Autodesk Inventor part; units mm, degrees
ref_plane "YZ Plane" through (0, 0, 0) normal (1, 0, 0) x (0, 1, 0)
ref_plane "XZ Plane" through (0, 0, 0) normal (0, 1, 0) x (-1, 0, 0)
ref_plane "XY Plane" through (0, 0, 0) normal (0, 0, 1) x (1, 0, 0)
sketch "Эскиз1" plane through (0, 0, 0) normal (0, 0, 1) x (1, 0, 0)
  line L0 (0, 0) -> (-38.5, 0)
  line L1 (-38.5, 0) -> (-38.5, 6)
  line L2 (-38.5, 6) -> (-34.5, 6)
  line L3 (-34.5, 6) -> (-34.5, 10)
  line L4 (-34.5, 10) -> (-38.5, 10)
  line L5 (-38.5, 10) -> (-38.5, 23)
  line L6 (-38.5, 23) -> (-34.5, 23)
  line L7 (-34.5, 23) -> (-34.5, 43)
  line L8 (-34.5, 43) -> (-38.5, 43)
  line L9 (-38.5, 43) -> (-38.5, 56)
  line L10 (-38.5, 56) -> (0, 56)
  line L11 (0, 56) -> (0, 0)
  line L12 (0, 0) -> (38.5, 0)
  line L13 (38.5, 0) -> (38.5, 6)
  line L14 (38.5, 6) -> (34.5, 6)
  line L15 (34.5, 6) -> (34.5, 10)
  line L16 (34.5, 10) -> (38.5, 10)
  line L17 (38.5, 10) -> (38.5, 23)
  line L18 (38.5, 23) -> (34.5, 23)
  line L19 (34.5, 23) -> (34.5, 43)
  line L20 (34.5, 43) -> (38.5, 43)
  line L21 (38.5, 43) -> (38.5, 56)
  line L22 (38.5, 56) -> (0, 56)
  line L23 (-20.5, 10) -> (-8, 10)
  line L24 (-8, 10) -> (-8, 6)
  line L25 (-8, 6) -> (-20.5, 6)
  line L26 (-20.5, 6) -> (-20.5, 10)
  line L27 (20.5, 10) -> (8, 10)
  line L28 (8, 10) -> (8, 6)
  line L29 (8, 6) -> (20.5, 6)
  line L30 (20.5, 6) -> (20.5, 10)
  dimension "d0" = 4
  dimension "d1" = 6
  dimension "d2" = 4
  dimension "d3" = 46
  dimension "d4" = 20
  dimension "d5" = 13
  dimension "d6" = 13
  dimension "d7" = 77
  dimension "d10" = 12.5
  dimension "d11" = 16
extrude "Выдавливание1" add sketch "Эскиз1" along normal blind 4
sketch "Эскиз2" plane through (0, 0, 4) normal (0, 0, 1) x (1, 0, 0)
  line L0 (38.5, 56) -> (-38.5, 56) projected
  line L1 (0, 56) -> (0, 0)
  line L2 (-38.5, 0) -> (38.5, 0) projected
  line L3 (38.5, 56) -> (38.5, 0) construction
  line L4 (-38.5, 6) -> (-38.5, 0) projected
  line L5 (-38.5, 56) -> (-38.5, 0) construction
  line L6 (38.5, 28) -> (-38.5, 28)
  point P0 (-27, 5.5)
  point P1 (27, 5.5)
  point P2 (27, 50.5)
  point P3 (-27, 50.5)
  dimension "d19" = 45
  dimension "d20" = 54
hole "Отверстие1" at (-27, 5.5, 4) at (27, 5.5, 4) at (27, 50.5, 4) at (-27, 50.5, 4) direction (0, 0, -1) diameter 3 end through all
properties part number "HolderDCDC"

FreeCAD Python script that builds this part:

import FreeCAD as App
import Part
import Sketcher


def add_polygon(sketch, points):
    """Adds a closed chain of lines whose ends are joined by coincident constraints."""
    first, n = sketch.GeometryCount, len(points)
    for a, b in zip(points, points[1:] + points[:1]):
        sketch.addGeometry(Part.LineSegment(App.Vector(*a, 0), App.Vector(*b, 0)), False)
    for i in range(n):
        sketch.addConstraint(Sketcher.Constraint("Coincident", first + i, 2, first + (i + 1) % n, 1))

doc = App.newDocument("Part")
body = doc.addObject("PartDesign::Body", "Body")

sketch1 = doc.addObject("Sketcher::SketchObject", "Sketch")
body.addObject(sketch1)
sketch1.AttachmentSupport = (doc.XY_Plane, [""])
sketch1.MapMode = "FlatFace"
add_polygon(sketch1, [(-38.5, 0), (38.5, 0), (38.5, 6), (34.5, 6), (34.5, 10), (38.5, 10), (38.5, 23), (34.5, 23), (34.5, 43), (38.5, 43), (38.5, 56), (-38.5, 56), (-38.5, 43), (-34.5, 43), (-34.5, 23), (-38.5, 23), (-38.5, 10), (-34.5, 10), (-34.5, 6), (-38.5, 6)])
add_polygon(sketch1, [(-20.5, 6), (-20.5, 10), (-8, 10), (-8, 6)])
add_polygon(sketch1, [(20.5, 10), (20.5, 6), (8, 6), (8, 10)])
sketch1.addConstraint(Sketcher.Constraint("Horizontal", 0))
sketch1.addConstraint(Sketcher.Constraint("Vertical", 1))
sketch1.addConstraint(Sketcher.Constraint("Horizontal", 2))
sketch1.addConstraint(Sketcher.Constraint("Vertical", 3))
sketch1.addConstraint(Sketcher.Constraint("Horizontal", 4))
sketch1.addConstraint(Sketcher.Constraint("Vertical", 5))
sketch1.addConstraint(Sketcher.Constraint("Horizontal", 6))
sketch1.addConstraint(Sketcher.Constraint("Vertical", 7))
sketch1.addConstraint(Sketcher.Constraint("Horizontal", 8))
sketch1.addConstraint(Sketcher.Constraint("Vertical", 9))
sketch1.addConstraint(Sketcher.Constraint("Horizontal", 10))
sketch1.addConstraint(Sketcher.Constraint("Vertical", 11))
sketch1.addConstraint(Sketcher.Constraint("Horizontal", 12))
sketch1.addConstraint(Sketcher.Constraint("Vertical", 13))
sketch1.addConstraint(Sketcher.Constraint("Horizontal", 14))
sketch1.addConstraint(Sketcher.Constraint("Vertical", 15))
sketch1.addConstraint(Sketcher.Constraint("Horizontal", 16))
sketch1.addConstraint(Sketcher.Constraint("Vertical", 17))
sketch1.addConstraint(Sketcher.Constraint("Horizontal", 18))
sketch1.addConstraint(Sketcher.Constraint("Vertical", 19))
sketch1.addConstraint(Sketcher.Constraint("Vertical", 20))
sketch1.addConstraint(Sketcher.Constraint("Horizontal", 21))
sketch1.addConstraint(Sketcher.Constraint("Vertical", 22))
sketch1.addConstraint(Sketcher.Constraint("Horizontal", 23))
sketch1.addConstraint(Sketcher.Constraint("Vertical", 24))
sketch1.addConstraint(Sketcher.Constraint("Horizontal", 25))
sketch1.addConstraint(Sketcher.Constraint("Vertical", 26))
sketch1.addConstraint(Sketcher.Constraint("Horizontal", 27))
sketch1.addConstraint(Sketcher.Constraint("Symmetric", 0, 2, 19, 2, -1, 1))
sketch1.addConstraint(Sketcher.Constraint("Symmetric", 8, 2, 11, 2, -2))
sketch1.addConstraint(Sketcher.Constraint("Symmetric", 6, 2, 13, 2, -2))
sketch1.addConstraint(Sketcher.Constraint("Symmetric", 4, 2, 15, 2, -2))
sketch1.addConstraint(Sketcher.Constraint("Symmetric", 2, 2, 17, 2, -2))
sketch1.addConstraint(Sketcher.Constraint("Symmetric", 23, 2, 24, 2, -2))
sketch1.addConstraint(Sketcher.Constraint("Symmetric", 21, 2, 26, 2, -2))
sketch1.addConstraint(Sketcher.Constraint("Horizontal", 16, 2, 20, 2))
sketch1.addConstraint(Sketcher.Constraint("Horizontal", 18, 2, 22, 2))
sketch1.addConstraint(Sketcher.Constraint("Vertical", 1, 2, 4, 2))
sketch1.addConstraint(Sketcher.Constraint("Vertical", 3, 2, 6, 2))
sketch1.addConstraint(Sketcher.Constraint("Vertical", 5, 2, 8, 2))
sketch1.addConstraint(Sketcher.Constraint("Equal", 18, 3))
sketch1.addConstraint(Sketcher.Constraint("Equal", 5, 9))
sketch1.addConstraint(Sketcher.Constraint("DistanceX", 0, 1, 0, 2, 77.0))
sketch1.addConstraint(Sketcher.Constraint("DistanceX", 2, 2, 2, 1, 4.0))
sketch1.addConstraint(Sketcher.Constraint("DistanceY", 1, 1, 1, 2, 6.0))
sketch1.addConstraint(Sketcher.Constraint("DistanceY", 5, 1, 5, 2, 13.0))
sketch1.addConstraint(Sketcher.Constraint("DistanceY", 7, 1, 7, 2, 20.0))
sketch1.addConstraint(Sketcher.Constraint("DistanceX", 21, 1, 21, 2, 12.5))
sketch1.addConstraint(Sketcher.Constraint("DistanceX", 22, 2, 25, 2, 16.0))
pad1 = doc.addObject("PartDesign::Pad", "Pad")
body.addObject(pad1)
pad1.Profile = sketch1
pad1.Length = 4

sketch2 = doc.addObject("Sketcher::SketchObject", "Sketch001")
body.addObject(sketch2)
sketch2.AttachmentSupport = (doc.XY_Plane, [""])
sketch2.MapMode = "FlatFace"
sketch2.AttachmentOffset = App.Placement(App.Vector(0, 0, 4), App.Rotation())
sketch2.addGeometry(Part.Circle(App.Vector(-27, 5.5, 0), App.Vector(0, 0, 1), 1.5), False)
sketch2.addGeometry(Part.Circle(App.Vector(27, 5.5, 0), App.Vector(0, 0, 1), 1.5), False)
sketch2.addGeometry(Part.Circle(App.Vector(27, 50.5, 0), App.Vector(0, 0, 1), 1.5), False)
sketch2.addGeometry(Part.Circle(App.Vector(-27, 50.5, 0), App.Vector(0, 0, 1), 1.5), False)
sketch2.addConstraint(Sketcher.Constraint("Equal", 0, 1))
sketch2.addConstraint(Sketcher.Constraint("Equal", 1, 2))
sketch2.addConstraint(Sketcher.Constraint("Equal", 2, 3))
sketch2.addConstraint(Sketcher.Constraint("Symmetric", 0, 3, 1, 3, -2))
sketch2.addConstraint(Sketcher.Constraint("Symmetric", 2, 3, 3, 3, -2))
sketch2.addConstraint(Sketcher.Constraint("Vertical", 1, 3, 2, 3))
sketch2.addConstraint(Sketcher.Constraint("Diameter", 0, 3.0))
sketch2.addConstraint(Sketcher.Constraint("DistanceX", 0, 3, -1, 1, 27.0))
sketch2.addConstraint(Sketcher.Constraint("DistanceY", 1, 3, 2, 3, 45.0))
sketch2.addConstraint(Sketcher.Constraint("DistanceY", -1, 1, 0, 3, 5.5))
doc.recompute()
hole = doc.addObject("PartDesign::Hole", "Hole")
body.addObject(hole)
hole.Profile = sketch2
hole.ThreadType = "None"
hole.Diameter = 3
hole.DepthType = "ThroughAll"

doc.recompute()
